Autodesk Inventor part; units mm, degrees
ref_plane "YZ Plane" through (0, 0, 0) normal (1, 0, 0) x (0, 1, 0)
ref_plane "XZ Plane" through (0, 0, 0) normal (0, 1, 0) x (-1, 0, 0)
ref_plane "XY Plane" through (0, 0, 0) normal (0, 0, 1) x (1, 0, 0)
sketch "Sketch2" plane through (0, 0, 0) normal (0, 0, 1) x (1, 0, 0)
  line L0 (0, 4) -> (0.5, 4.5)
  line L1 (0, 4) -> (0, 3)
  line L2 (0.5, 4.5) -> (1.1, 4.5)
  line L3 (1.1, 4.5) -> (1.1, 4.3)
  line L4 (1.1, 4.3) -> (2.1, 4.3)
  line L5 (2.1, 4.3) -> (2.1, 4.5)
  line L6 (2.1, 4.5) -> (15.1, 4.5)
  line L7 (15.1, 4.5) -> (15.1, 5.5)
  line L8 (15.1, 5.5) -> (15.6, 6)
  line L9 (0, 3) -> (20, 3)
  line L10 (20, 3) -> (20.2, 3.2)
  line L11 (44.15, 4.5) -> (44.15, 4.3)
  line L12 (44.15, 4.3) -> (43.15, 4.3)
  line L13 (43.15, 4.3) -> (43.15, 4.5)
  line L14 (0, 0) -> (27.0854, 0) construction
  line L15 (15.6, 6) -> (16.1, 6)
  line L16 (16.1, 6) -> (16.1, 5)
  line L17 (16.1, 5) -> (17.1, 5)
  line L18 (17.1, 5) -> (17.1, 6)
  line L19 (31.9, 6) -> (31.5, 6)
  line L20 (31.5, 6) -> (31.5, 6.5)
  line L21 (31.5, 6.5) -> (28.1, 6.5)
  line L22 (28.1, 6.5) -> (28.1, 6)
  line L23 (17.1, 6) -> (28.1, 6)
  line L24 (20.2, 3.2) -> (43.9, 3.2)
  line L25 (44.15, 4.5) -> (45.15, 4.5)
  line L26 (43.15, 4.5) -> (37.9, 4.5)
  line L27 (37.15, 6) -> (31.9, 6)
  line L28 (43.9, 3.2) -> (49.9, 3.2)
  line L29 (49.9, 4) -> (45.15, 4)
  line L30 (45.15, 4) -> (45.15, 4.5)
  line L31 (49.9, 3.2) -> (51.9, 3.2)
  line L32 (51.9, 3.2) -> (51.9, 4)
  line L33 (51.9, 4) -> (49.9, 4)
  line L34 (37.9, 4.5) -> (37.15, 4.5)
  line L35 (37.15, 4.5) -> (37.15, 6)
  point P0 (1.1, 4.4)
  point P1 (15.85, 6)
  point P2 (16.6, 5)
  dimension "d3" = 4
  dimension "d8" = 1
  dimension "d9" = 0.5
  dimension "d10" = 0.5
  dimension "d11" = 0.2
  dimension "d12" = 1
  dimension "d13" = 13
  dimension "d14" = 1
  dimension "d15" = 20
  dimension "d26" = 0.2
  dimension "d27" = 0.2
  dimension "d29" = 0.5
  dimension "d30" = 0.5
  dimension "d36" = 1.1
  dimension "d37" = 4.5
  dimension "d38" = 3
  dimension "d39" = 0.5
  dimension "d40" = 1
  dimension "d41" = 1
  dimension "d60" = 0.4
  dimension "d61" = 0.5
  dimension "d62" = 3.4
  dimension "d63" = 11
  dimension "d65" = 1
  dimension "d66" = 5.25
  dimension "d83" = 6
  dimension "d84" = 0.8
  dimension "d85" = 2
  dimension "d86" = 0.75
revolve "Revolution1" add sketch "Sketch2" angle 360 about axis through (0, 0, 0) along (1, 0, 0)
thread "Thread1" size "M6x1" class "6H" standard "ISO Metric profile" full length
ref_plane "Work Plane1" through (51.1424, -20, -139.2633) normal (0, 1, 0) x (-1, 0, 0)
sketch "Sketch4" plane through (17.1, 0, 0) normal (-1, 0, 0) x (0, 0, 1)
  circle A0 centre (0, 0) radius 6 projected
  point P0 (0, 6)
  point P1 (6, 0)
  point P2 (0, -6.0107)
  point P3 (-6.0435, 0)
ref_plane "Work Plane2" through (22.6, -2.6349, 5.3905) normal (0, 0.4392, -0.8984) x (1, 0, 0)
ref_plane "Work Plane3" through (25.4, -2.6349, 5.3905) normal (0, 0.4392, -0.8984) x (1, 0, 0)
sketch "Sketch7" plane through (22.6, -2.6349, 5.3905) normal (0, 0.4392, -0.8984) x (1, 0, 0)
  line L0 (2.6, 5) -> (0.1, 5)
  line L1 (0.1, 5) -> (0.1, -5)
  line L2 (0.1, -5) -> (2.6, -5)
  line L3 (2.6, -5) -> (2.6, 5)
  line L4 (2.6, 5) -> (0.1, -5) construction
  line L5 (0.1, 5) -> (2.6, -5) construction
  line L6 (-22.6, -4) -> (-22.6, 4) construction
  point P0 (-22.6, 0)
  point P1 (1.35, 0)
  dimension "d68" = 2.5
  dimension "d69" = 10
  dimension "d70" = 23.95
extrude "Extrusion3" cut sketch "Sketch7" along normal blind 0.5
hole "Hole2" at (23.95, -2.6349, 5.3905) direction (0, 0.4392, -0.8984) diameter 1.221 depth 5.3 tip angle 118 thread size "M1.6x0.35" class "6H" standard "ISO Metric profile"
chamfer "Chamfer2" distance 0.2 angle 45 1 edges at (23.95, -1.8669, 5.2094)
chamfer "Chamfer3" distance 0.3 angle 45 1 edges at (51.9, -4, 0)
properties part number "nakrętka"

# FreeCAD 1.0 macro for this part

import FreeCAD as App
import Part
import Sketcher
from FreeCAD import Vector


def edges_at(feature, points):
    """Names of the edges that pass closest to the given points."""
    edges = feature.Shape.Edges
    near = lambda p: min(range(len(edges)), key=lambda i: edges[i].distToShape(Part.Vertex(*p))[0])
    return sorted({f"Edge{near(p) + 1}" for p in points})

doc = App.newDocument("Part")
body = doc.addObject("PartDesign::Body", "Body")

sketch1 = body.newObject("Sketcher::SketchObject", "Sketch")
sketch1.AttachmentSupport = (doc.getObject("XY_Plane"), [""])
sketch1.MapMode = "FlatFace"
sketch1.addGeometry(Part.LineSegment(Vector(0.5, 4.5, 0), Vector(0, 4, 0)), False)
sketch1.addGeometry(Part.LineSegment(Vector(0, 4, 0), Vector(0, 3, 0)), False)
sketch1.addGeometry(Part.LineSegment(Vector(0, 3, 0), Vector(20, 3, 0)), False)
sketch1.addGeometry(Part.LineSegment(Vector(20, 3, 0), Vector(20.2, 3.2, 0)), False)
sketch1.addGeometry(Part.LineSegment(Vector(20.2, 3.2, 0), Vector(51.9, 3.2, 0)), False)
sketch1.addGeometry(Part.LineSegment(Vector(51.9, 3.2, 0), Vector(51.9, 4, 0)), False)
sketch1.addGeometry(Part.LineSegment(Vector(51.9, 4, 0), Vector(45.15, 4, 0)), False)
sketch1.addGeometry(Part.LineSegment(Vector(45.15, 4, 0), Vector(45.15, 4.5, 0)), False)
sketch1.addGeometry(Part.LineSegment(Vector(45.15, 4.5, 0), Vector(44.15, 4.5, 0)), False)
sketch1.addGeometry(Part.LineSegment(Vector(44.15, 4.5, 0), Vector(44.15, 4.3, 0)), False)
sketch1.addGeometry(Part.LineSegment(Vector(44.15, 4.3, 0), Vector(43.15, 4.3, 0)), False)
sketch1.addGeometry(Part.LineSegment(Vector(43.15, 4.3, 0), Vector(43.15, 4.5, 0)), False)
sketch1.addGeometry(Part.LineSegment(Vector(43.15, 4.5, 0), Vector(37.15, 4.5, 0)), False)
sketch1.addGeometry(Part.LineSegment(Vector(37.15, 4.5, 0), Vector(37.15, 6, 0)), False)
sketch1.addGeometry(Part.LineSegment(Vector(37.15, 6, 0), Vector(31.5, 6, 0)), False)
sketch1.addGeometry(Part.LineSegment(Vector(31.5, 6, 0), Vector(31.5, 6.5, 0)), False)
sketch1.addGeometry(Part.LineSegment(Vector(31.5, 6.5, 0), Vector(28.1, 6.5, 0)), False)
sketch1.addGeometry(Part.LineSegment(Vector(28.1, 6.5, 0), Vector(28.1, 6, 0)), False)
sketch1.addGeometry(Part.LineSegment(Vector(28.1, 6, 0), Vector(17.1, 6, 0)), False)
sketch1.addGeometry(Part.LineSegment(Vector(17.1, 6, 0), Vector(17.1, 5, 0)), False)
sketch1.addGeometry(Part.LineSegment(Vector(17.1, 5, 0), Vector(16.1, 5, 0)), False)
sketch1.addGeometry(Part.LineSegment(Vector(16.1, 5, 0), Vector(16.1, 6, 0)), False)
sketch1.addGeometry(Part.LineSegment(Vector(16.1, 6, 0), Vector(15.6, 6, 0)), False)
sketch1.addGeometry(Part.LineSegment(Vector(15.6, 6, 0), Vector(15.1, 5.5, 0)), False)
sketch1.addGeometry(Part.LineSegment(Vector(15.1, 5.5, 0), Vector(15.1, 4.5, 0)), False)
sketch1.addGeometry(Part.LineSegment(Vector(15.1, 4.5, 0), Vector(2.1, 4.5, 0)), False)
sketch1.addGeometry(Part.LineSegment(Vector(2.1, 4.5, 0), Vector(2.1, 4.3, 0)), False)
sketch1.addGeometry(Part.LineSegment(Vector(2.1, 4.3, 0), Vector(1.1, 4.3, 0)), False)
sketch1.addGeometry(Part.LineSegment(Vector(1.1, 4.3, 0), Vector(1.1, 4.5, 0)), False)
sketch1.addGeometry(Part.LineSegment(Vector(1.1, 4.5, 0), Vector(0.5, 4.5, 0)), False)
sketch1.addConstraint(Sketcher.Constraint("Coincident", 0, 2, 1, 1))
sketch1.addConstraint(Sketcher.Constraint("Coincident", 1, 2, 2, 1))
sketch1.addConstraint(Sketcher.Constraint("Coincident", 2, 2, 3, 1))
sketch1.addConstraint(Sketcher.Constraint("Coincident", 3, 2, 4, 1))
sketch1.addConstraint(Sketcher.Constraint("Coincident", 4, 2, 5, 1))
sketch1.addConstraint(Sketcher.Constraint("Coincident", 5, 2, 6, 1))
sketch1.addConstraint(Sketcher.Constraint("Coincident", 6, 2, 7, 1))
sketch1.addConstraint(Sketcher.Constraint("Coincident", 7, 2, 8, 1))
sketch1.addConstraint(Sketcher.Constraint("Coincident", 8, 2, 9, 1))
sketch1.addConstraint(Sketcher.Constraint("Coincident", 9, 2, 10, 1))
sketch1.addConstraint(Sketcher.Constraint("Coincident", 10, 2, 11, 1))
sketch1.addConstraint(Sketcher.Constraint("Coincident", 11, 2, 12, 1))
sketch1.addConstraint(Sketcher.Constraint("Coincident", 12, 2, 13, 1))
sketch1.addConstraint(Sketcher.Constraint("Coincident", 13, 2, 14, 1))
sketch1.addConstraint(Sketcher.Constraint("Coincident", 14, 2, 15, 1))
sketch1.addConstraint(Sketcher.Constraint("Coincident", 15, 2, 16, 1))
sketch1.addConstraint(Sketcher.Constraint("Coincident", 16, 2, 17, 1))
sketch1.addConstraint(Sketcher.Constraint("Coincident", 17, 2, 18, 1))
sketch1.addConstraint(Sketcher.Constraint("Coincident", 18, 2, 19, 1))
sketch1.addConstraint(Sketcher.Constraint("Coincident", 19, 2, 20, 1))
sketch1.addConstraint(Sketcher.Constraint("Coincident", 20, 2, 21, 1))
sketch1.addConstraint(Sketcher.Constraint("Coincident", 21, 2, 22, 1))
sketch1.addConstraint(Sketcher.Constraint("Coincident", 22, 2, 23, 1))
sketch1.addConstraint(Sketcher.Constraint("Coincident", 23, 2, 24, 1))
sketch1.addConstraint(Sketcher.Constraint("Coincident", 24, 2, 25, 1))
sketch1.addConstraint(Sketcher.Constraint("Coincident", 25, 2, 26, 1))
sketch1.addConstraint(Sketcher.Constraint("Coincident", 26, 2, 27, 1))
sketch1.addConstraint(Sketcher.Constraint("Coincident", 27, 2, 28, 1))
sketch1.addConstraint(Sketcher.Constraint("Coincident", 28, 2, 29, 1))
sketch1.addConstraint(Sketcher.Constraint("Coincident", 29, 2, 0, 1))
sketch1.addConstraint(Sketcher.Constraint("Vertical", 1))
sketch1.addConstraint(Sketcher.Constraint("Horizontal", 2))
sketch1.addConstraint(Sketcher.Constraint("Horizontal", 4))
sketch1.addConstraint(Sketcher.Constraint("Vertical", 5))
sketch1.addConstraint(Sketcher.Constraint("Horizontal", 6))
sketch1.addConstraint(Sketcher.Constraint("Vertical", 7))
sketch1.addConstraint(Sketcher.Constraint("Horizontal", 8))
sketch1.addConstraint(Sketcher.Constraint("Vertical", 9))
sketch1.addConstraint(Sketcher.Constraint("Horizontal", 10))
sketch1.addConstraint(Sketcher.Constraint("Vertical", 11))
sketch1.addConstraint(Sketcher.Constraint("Horizontal", 12))
sketch1.addConstraint(Sketcher.Constraint("Vertical", 13))
sketch1.addConstraint(Sketcher.Constraint("Horizontal", 14))
sketch1.addConstraint(Sketcher.Constraint("Vertical", 15))
sketch1.addConstraint(Sketcher.Constraint("Horizontal", 16))
sketch1.addConstraint(Sketcher.Constraint("Vertical", 17))
sketch1.addConstraint(Sketcher.Constraint("Horizontal", 18))
sketch1.addConstraint(Sketcher.Constraint("Vertical", 19))
sketch1.addConstraint(Sketcher.Constraint("Horizontal", 20))
sketch1.addConstraint(Sketcher.Constraint("Vertical", 21))
sketch1.addConstraint(Sketcher.Constraint("Horizontal", 22))
sketch1.addConstraint(Sketcher.Constraint("Vertical", 24))
sketch1.addConstraint(Sketcher.Constraint("Horizontal", 25))
sketch1.addConstraint(Sketcher.Constraint("Vertical", 26))
sketch1.addConstraint(Sketcher.Constraint("Horizontal", 27))
sketch1.addConstraint(Sketcher.Constraint("Vertical", 28))
sketch1.addConstraint(Sketcher.Constraint("Horizontal", 29))
sketch1.addConstraint(Sketcher.Constraint("PointOnObject", 0, 2, -2))
sketch1.addConstraint(Sketcher.Constraint("Parallel", 0, 3))
sketch1.addConstraint(Sketcher.Constraint("Parallel", 3, 23))
sketch1.addConstraint(Sketcher.Constraint("Horizontal", 0, 2, 5, 2))
sketch1.addConstraint(Sketcher.Constraint("Horizontal", 8, 2, 11, 2))
sketch1.addConstraint(Sketcher.Constraint("Horizontal", 14, 2, 17, 2))
sketch1.addConstraint(Sketcher.Constraint("Horizontal", 18, 2, 21, 2))
sketch1.addConstraint(Sketcher.Constraint("Horizontal", 12, 2, 24, 2))
sketch1.addConstraint(Sketcher.Constraint("Horizontal", 10, 2, 26, 2))
sketch1.addConstraint(Sketcher.Constraint("Horizontal", 25, 2, 28, 2))
sketch1.addConstraint(Sketcher.Constraint("Equal", 8, 10))
sketch1.addConstraint(Sketcher.Constraint("Equal", 10, 20))
sketch1.addConstraint(Sketcher.Constraint("Equal", 20, 27))
sketch1.addConstraint(Sketcher.Constraint("Equal", 27, 1))
sketch1.addConstraint(Sketcher.Constraint("Equal", 22, 7))
sketch1.addConstraint(Sketcher.Constraint("Equal", 7, 15))
sketch1.addConstraint(Sketcher.Constraint("Equal", 1, 19))
sketch1.addConstraint(Sketcher.Constraint("Equal", 21, 24))
sketch1.addConstraint(Sketcher.Constraint("Equal", 0, 23))
sketch1.addConstraint(Sketcher.Constraint("DistanceX", 2, 1, 2, 2, 20.0))
sketch1.addConstraint(Sketcher.Constraint("DistanceX", 8, 2, 8, 1, 1.0))
sketch1.addConstraint(Sketcher.Constraint("DistanceX", 12, 2, 12, 1, 6.0))
sketch1.addConstraint(Sketcher.Constraint("DistanceX", 18, 2, 18, 1, 11.0))
sketch1.addConstraint(Sketcher.Constraint("DistanceX", 25, 2, 25, 1, 13.0))
sketch1.addConstraint(Sketcher.Constraint("DistanceX", 16, 2, 16, 1, 3.4))
sketch1.addConstraint(Sketcher.Constraint("DistanceX", 22, 2, 22, 1, 0.5))
sketch1.addConstraint(Sketcher.Constraint("DistanceY", 5, 1, 5, 2, 0.8))
sketch1.addConstraint(Sketcher.Constraint("DistanceY", 9, 2, 9, 1, 0.2))
sketch1.addConstraint(Sketcher.Constraint("DistanceY", -1, 1, 0, 2, 4.0))
sketch1.addConstraint(Sketcher.Constraint("DistanceX", 23, 2, 20, 2, 1.0))
sketch1.addConstraint(Sketcher.Constraint("DistanceX", -1, 1, 27, 2, 1.1))
sketch1.addConstraint(Sketcher.Constraint("DistanceX", 4, 1, 4, 2, 31.7))
sketch1.addConstraint(Sketcher.Constraint("DistanceX", 6, 2, 6, 1, 6.75))
revolution = body.newObject("PartDesign::Revolution", "Revolution")
revolution.Profile = sketch1
revolution.ReferenceAxis = (sketch1, ["H_Axis"])
revolution.Angle = 360

sketch2 = body.newObject("Sketcher::SketchObject", "Sketch001")
sketch2.Placement = App.Placement(Vector(22.6, -2.6349, 5.3905), App.Rotation(Vector(1, 0, 0), Vector(0, -0.898391375, -0.439195784), Vector(0, 0.439195784, -0.898391375), "ZXY"))
sketch2.addGeometry(Part.LineSegment(Vector(2.6, -5, 0), Vector(2.6, 5, 0)), False)
sketch2.addGeometry(Part.LineSegment(Vector(2.6, 5, 0), Vector(0.1, 5, 0)), False)
sketch2.addGeometry(Part.LineSegment(Vector(0.1, 5, 0), Vector(0.1, -5, 0)), False)
sketch2.addGeometry(Part.LineSegment(Vector(0.1, -5, 0), Vector(2.6, -5, 0)), False)
sketch2.addConstraint(Sketcher.Constraint("Coincident", 0, 2, 1, 1))
sketch2.addConstraint(Sketcher.Constraint("Coincident", 1, 2, 2, 1))
sketch2.addConstraint(Sketcher.Constraint("Coincident", 2, 2, 3, 1))
sketch2.addConstraint(Sketcher.Constraint("Coincident", 3, 2, 0, 1))
sketch2.addConstraint(Sketcher.Constraint("Vertical", 0))
sketch2.addConstraint(Sketcher.Constraint("Horizontal", 1))
sketch2.addConstraint(Sketcher.Constraint("Vertical", 2))
sketch2.addConstraint(Sketcher.Constraint("Horizontal", 3))
sketch2.addConstraint(Sketcher.Constraint("DistanceY", 0, 1, 0, 2, 10.0))
sketch2.addConstraint(Sketcher.Constraint("DistanceX", 1, 2, 1, 1, 2.5))
sketch2.addConstraint(Sketcher.Constraint("DistanceY", -1, 1, 0, 2, 5.0))
sketch2.addConstraint(Sketcher.Constraint("DistanceX", -1, 1, 0, 2, 2.6))
pocket1 = body.newObject("PartDesign::Pocket", "Pocket")
pocket1.Profile = sketch2
pocket1.Length = 0.5
pocket1.Reversed = True

sketch3 = body.newObject("Sketcher::SketchObject", "Sketch002")
sketch3.Placement = App.Placement(Vector(0, -2.635182, 5.390362), App.Rotation(Vector(0, -0.898391375, -0.439195784), Vector(0.999999999, 0, 0), Vector(0, -0.439195784, 0.898391375), "ZXY"))
sketch3.addGeometry(Part.Circle(Vector(0, 23.9, 0), Vector(0, 0, 1), 0.6), False)
sketch3.addConstraint(Sketcher.Constraint("Diameter", 0, 1.221))
sketch3.addConstraint(Sketcher.Constraint("DistanceY", -1, 1, 0, 3, 23.95))
sketch3.addConstraint(Sketcher.Constraint("DistanceX", 0, 3, -1, 1, 0.0003))
doc.recompute()
hole = body.newObject("PartDesign::Hole", "Hole")
hole.Profile = sketch3
hole.ThreadType = "None"
hole.Diameter = 1.221
hole.DepthType = "Dimension"
hole.Depth = 5.3
hole.DrillPoint = "Angled"
hole.DrillPointAngle = 118
doc.recompute()

chamfer = body.newObject("PartDesign::Chamfer", "Chamfer")
chamfer.Base = (hole, edges_at(hole, [(23.95, -1.867, 5.209)]))
chamfer.Size = 0.2
doc.recompute()

chamfer2 = body.newObject("PartDesign::Chamfer", "Chamfer001")
chamfer2.Base = (chamfer, edges_at(chamfer, [(51.9, -4, 0)]))
chamfer2.Size = 0.3

doc.recompute()
